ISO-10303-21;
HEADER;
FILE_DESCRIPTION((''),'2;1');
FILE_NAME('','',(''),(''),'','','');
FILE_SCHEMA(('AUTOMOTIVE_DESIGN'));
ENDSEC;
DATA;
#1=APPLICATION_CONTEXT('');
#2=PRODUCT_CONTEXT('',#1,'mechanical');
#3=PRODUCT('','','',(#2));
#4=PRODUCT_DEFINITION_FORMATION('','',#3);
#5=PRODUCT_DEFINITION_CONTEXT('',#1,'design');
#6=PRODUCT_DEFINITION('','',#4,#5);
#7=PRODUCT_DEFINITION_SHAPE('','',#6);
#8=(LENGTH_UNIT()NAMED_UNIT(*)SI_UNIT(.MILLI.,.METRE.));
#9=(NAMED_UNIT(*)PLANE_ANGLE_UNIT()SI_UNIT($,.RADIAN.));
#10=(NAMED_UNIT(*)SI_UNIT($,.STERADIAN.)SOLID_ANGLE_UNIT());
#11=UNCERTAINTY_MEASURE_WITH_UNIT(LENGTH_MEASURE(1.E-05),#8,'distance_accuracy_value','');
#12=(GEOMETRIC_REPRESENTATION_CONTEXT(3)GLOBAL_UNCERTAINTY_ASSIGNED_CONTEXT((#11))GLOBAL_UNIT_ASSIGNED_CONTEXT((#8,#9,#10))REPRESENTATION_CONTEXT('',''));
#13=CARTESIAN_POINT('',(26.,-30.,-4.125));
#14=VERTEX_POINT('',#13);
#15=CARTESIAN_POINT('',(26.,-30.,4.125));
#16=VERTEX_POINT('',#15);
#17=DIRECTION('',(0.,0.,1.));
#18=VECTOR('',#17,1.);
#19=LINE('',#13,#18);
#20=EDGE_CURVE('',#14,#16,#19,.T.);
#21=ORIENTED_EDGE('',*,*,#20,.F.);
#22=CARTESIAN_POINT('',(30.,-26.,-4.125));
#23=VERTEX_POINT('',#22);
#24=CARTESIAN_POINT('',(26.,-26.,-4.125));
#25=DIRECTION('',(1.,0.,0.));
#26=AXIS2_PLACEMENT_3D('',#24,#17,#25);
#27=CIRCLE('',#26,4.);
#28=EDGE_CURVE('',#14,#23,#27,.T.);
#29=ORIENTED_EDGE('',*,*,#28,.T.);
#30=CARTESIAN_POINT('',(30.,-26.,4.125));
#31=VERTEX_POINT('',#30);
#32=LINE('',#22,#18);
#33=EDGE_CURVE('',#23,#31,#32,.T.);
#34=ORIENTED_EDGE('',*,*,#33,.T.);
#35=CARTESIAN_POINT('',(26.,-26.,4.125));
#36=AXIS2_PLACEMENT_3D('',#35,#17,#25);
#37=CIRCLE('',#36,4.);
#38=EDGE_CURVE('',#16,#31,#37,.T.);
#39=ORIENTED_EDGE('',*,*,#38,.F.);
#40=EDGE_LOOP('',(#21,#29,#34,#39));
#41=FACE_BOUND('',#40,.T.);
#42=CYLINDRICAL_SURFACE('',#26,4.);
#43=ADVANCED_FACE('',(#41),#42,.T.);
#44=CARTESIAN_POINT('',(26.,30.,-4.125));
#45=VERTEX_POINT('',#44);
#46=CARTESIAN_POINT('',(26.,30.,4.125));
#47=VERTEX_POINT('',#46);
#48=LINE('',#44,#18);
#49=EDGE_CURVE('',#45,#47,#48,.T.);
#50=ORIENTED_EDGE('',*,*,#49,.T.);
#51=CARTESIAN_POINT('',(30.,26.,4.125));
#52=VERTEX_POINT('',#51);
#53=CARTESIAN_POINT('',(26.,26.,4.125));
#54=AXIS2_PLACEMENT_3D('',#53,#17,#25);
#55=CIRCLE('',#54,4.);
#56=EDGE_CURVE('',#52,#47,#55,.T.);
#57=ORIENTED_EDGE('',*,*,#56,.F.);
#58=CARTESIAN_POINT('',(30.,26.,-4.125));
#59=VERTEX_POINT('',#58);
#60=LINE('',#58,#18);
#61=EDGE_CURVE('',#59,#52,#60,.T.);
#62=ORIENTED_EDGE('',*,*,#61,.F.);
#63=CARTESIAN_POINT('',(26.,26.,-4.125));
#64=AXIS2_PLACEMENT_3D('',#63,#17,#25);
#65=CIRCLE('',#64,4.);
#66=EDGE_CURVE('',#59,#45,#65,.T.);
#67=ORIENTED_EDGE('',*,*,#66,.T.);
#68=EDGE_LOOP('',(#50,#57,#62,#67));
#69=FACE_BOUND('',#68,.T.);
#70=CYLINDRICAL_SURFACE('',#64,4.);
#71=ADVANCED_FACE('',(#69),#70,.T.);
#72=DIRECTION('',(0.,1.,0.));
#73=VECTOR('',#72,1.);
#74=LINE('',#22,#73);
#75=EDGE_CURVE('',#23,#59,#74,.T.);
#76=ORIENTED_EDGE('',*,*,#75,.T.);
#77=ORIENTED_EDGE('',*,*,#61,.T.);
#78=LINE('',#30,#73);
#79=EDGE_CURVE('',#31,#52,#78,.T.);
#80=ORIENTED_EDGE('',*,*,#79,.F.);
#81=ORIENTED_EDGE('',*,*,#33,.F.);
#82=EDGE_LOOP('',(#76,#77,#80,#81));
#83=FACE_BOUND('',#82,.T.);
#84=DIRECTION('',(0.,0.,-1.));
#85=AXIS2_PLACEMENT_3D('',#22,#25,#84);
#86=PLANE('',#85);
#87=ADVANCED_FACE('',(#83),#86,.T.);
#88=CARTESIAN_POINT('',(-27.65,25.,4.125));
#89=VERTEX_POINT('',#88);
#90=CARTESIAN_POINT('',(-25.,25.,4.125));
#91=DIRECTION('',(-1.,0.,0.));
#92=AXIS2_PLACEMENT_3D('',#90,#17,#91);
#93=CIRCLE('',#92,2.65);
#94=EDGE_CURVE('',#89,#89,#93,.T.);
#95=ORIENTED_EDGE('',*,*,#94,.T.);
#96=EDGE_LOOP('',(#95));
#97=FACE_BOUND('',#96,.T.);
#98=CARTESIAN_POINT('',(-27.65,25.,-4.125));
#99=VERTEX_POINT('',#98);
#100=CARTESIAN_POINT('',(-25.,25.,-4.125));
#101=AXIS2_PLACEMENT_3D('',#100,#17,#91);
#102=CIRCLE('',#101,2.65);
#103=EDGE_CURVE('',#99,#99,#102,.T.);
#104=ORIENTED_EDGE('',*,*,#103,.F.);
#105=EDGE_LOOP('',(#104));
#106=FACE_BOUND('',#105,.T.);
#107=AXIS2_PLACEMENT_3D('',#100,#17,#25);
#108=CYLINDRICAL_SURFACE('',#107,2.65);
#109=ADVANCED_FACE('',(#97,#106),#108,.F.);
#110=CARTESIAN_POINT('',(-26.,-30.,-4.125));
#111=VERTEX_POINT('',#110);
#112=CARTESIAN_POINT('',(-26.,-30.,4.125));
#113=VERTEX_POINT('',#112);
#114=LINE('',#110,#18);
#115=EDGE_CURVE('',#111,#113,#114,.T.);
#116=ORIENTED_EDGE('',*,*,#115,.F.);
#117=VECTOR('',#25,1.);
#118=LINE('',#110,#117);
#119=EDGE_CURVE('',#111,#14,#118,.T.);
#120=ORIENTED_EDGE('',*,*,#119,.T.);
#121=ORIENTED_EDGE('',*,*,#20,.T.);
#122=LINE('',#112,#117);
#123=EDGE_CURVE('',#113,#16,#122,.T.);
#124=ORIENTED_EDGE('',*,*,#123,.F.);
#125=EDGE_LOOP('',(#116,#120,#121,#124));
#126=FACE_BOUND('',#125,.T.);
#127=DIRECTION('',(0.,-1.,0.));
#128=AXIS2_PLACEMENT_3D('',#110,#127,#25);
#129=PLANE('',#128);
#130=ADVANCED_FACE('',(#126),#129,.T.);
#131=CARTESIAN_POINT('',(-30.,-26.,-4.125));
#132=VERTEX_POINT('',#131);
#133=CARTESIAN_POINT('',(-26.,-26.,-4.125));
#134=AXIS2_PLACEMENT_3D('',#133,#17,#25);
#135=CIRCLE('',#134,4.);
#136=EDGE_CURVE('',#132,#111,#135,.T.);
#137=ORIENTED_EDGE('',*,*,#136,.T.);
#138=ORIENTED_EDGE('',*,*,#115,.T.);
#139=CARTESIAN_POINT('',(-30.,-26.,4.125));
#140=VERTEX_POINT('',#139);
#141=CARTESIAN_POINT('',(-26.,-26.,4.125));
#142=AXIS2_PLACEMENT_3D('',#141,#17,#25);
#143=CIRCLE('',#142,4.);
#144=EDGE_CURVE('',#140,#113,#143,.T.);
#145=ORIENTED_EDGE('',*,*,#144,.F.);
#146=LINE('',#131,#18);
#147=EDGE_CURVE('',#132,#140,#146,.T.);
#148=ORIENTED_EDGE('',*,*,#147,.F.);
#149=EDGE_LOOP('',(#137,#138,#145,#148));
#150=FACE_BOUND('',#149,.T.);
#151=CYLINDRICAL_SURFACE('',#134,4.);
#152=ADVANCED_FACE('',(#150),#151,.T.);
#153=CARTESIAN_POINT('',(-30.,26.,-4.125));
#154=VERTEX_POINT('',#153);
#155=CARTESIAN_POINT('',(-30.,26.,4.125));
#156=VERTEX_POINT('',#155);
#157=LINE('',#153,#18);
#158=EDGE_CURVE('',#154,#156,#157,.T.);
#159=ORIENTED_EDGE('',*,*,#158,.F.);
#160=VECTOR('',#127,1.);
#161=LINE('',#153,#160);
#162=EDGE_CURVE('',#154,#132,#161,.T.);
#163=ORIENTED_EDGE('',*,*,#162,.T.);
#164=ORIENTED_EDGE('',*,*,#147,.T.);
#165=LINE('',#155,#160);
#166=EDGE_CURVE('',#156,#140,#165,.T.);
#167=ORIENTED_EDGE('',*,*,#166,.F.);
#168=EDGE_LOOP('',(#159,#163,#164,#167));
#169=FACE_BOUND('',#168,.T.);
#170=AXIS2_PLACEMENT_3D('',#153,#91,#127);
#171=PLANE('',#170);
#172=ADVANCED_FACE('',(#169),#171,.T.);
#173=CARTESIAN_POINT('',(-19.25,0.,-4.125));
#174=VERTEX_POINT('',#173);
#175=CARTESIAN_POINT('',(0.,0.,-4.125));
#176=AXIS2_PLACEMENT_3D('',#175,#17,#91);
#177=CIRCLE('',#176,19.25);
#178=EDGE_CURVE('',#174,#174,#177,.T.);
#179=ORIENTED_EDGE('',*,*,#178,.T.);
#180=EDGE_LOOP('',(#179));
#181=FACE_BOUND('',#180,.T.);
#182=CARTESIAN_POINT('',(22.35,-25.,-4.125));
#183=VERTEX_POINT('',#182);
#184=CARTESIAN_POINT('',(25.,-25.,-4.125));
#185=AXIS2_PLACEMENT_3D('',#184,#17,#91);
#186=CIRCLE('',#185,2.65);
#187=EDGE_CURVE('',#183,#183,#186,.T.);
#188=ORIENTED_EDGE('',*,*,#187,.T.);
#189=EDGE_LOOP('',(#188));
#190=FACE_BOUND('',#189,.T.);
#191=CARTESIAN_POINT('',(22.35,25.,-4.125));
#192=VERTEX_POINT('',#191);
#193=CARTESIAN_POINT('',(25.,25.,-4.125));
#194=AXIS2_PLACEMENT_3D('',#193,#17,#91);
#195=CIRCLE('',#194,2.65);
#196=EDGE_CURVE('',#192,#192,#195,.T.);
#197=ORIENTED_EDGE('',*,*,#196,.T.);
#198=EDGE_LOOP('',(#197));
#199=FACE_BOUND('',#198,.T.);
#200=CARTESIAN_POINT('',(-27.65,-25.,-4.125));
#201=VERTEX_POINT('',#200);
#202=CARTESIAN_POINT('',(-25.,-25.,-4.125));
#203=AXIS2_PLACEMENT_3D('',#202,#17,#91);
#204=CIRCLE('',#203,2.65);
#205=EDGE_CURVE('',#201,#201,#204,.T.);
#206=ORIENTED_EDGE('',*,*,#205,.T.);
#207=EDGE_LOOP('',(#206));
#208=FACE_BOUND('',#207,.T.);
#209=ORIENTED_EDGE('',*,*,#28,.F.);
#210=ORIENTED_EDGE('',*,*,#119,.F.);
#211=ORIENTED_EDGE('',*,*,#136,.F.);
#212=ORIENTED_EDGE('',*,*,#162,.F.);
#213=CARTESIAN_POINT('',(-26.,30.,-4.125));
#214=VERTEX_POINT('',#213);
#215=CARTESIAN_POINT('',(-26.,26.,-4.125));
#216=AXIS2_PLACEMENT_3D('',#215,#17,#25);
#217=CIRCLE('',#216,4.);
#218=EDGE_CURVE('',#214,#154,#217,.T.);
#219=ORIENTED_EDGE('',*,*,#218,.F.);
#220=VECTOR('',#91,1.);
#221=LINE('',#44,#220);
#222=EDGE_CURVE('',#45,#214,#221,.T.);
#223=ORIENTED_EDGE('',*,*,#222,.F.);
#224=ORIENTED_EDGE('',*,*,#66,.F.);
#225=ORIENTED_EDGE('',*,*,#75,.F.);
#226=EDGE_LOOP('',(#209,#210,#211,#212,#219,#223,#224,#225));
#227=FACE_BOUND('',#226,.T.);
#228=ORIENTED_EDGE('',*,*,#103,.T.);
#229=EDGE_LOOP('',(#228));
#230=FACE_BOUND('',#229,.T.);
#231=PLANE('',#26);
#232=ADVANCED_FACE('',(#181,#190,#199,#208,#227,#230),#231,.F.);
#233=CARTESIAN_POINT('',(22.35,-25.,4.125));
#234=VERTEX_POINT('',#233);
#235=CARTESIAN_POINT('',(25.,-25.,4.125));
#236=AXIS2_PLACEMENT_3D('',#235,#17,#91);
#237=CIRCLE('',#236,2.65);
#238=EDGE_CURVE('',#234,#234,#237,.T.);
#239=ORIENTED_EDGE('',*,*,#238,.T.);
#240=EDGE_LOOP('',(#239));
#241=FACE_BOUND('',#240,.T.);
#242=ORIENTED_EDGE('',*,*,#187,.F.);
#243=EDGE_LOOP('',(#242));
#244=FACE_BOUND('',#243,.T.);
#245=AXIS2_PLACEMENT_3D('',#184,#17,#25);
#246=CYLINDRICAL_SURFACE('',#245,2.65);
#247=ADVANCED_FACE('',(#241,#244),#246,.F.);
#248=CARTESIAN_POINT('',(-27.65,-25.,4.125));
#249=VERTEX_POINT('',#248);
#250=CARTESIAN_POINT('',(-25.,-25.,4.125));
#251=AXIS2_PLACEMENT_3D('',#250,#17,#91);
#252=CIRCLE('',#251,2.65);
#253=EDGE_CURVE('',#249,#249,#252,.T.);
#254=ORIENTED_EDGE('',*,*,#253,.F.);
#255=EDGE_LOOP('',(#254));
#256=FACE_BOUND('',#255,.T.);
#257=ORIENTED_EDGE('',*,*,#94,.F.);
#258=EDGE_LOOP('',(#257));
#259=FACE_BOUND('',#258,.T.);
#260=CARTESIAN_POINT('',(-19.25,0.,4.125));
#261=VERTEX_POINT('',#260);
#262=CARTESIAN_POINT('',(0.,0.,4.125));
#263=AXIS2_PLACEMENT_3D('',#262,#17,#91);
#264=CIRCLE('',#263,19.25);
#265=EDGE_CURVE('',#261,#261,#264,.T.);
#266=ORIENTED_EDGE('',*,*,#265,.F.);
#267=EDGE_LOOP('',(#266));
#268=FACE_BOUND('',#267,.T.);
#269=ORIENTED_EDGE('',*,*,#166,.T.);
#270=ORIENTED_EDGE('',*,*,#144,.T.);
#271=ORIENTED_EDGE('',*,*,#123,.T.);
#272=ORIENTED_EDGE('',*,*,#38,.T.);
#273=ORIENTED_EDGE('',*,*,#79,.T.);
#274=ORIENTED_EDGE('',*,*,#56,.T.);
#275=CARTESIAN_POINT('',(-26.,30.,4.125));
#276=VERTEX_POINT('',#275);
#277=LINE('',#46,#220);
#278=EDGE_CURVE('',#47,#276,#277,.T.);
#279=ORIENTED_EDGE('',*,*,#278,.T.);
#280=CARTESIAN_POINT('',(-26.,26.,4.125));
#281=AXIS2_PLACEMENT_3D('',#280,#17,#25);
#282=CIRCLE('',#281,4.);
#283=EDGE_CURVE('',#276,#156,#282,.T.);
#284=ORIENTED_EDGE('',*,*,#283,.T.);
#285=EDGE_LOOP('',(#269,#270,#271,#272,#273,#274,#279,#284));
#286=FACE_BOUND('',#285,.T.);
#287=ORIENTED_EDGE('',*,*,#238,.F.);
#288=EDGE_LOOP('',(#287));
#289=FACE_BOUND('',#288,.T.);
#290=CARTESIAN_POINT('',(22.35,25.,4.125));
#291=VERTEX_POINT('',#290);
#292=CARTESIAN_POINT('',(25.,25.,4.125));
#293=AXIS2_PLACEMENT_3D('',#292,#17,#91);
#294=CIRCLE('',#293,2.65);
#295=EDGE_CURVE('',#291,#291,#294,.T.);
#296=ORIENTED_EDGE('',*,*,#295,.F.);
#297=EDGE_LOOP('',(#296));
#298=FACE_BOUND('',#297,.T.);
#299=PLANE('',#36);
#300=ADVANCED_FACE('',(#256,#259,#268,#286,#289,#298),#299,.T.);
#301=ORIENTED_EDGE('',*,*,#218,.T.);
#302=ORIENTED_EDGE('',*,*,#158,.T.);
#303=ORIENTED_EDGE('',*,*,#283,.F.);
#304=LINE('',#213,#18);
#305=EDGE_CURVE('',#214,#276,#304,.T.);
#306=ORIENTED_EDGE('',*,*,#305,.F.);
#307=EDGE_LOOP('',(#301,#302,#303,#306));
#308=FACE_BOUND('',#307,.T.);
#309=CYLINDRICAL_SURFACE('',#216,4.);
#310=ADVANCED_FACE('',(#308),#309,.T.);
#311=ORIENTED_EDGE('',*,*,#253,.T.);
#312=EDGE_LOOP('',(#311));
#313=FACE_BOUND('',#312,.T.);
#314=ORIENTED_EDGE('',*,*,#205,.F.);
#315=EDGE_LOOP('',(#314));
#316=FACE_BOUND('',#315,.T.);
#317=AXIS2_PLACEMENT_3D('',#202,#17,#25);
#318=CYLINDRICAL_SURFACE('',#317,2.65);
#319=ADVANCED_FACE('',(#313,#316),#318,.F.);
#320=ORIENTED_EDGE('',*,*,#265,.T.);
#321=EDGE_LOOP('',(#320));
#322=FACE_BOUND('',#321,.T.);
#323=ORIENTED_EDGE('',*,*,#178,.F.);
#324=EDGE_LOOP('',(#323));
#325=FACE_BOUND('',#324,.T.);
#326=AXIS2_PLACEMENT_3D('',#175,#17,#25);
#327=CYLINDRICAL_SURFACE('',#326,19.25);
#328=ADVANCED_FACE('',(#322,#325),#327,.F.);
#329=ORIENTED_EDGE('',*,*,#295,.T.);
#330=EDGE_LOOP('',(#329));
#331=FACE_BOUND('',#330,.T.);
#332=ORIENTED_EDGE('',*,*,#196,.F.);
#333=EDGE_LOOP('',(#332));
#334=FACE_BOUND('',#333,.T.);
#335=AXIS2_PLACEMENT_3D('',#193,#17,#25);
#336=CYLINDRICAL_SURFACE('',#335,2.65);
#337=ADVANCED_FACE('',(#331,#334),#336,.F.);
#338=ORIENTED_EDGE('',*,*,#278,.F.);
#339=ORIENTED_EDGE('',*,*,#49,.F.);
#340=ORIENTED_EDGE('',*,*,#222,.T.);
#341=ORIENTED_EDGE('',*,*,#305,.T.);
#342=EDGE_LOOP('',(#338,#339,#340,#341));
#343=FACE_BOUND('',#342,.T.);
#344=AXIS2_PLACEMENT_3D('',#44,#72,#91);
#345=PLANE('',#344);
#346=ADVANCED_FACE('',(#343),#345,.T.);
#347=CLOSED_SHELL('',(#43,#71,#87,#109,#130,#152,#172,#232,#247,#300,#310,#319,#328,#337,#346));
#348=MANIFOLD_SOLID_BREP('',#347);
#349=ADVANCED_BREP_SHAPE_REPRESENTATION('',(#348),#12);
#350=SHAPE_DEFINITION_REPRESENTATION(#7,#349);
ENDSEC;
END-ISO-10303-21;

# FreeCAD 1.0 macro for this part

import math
import FreeCAD as App
import Part
import Sketcher

V = App.Vector
Q = App.Units.Quantity

doc = App.newDocument("Part")
body = doc.addObject("PartDesign::Body", "Body")

sketch1 = body.newObject("Sketcher::SketchObject", "Sketch")
sketch1.AttachmentSupport = (doc.getObject("XY_Plane"), [""])
sketch1.MapMode = "FlatFace"
sketch1.addGeometry([
    Part.LineSegment(V(30, -26, 0), V(30, 26, 0)),
    Part.ArcOfCircle(Part.Circle(V(26, 26, 0), V(0, 0, 1), 4), math.radians(0), math.radians(90)),
    Part.LineSegment(V(26, 30, 0), V(-26, 30, 0)),
    Part.ArcOfCircle(Part.Circle(V(-26, 26, 0), V(0, 0, 1), 4), math.radians(90), math.radians(180)),
    Part.LineSegment(V(-30, 26, 0), V(-30, -26, 0)),
    Part.ArcOfCircle(Part.Circle(V(-26, -26, 0), V(0, 0, 1), 4), math.radians(180), math.radians(270)),
    Part.LineSegment(V(-26, -30, 0), V(26, -30, 0)),
    Part.ArcOfCircle(Part.Circle(V(26, -26, 0), V(0, 0, 1), 4), math.radians(-90), math.radians(0)),
    Part.Circle(V(-25, -25, 0), V(0, 0, 1), 2.6),
    Part.Circle(V(25, -25, 0), V(0, 0, 1), 2.6),
    Part.Circle(V(-25, 25, 0), V(0, 0, 1), 2.6),
    Part.Circle(V(0, 0, 0), V(0, 0, 1), 19.2),
    Part.Circle(V(25, 25, 0), V(0, 0, 1), 2.6),
], False)
sketch1.addConstraint([
    Sketcher.Constraint("Tangent", 0, 2, 1, 1),
    Sketcher.Constraint("Tangent", 1, 2, 2, 1),
    Sketcher.Constraint("Tangent", 2, 2, 3, 1),
    Sketcher.Constraint("Tangent", 3, 2, 4, 1),
    Sketcher.Constraint("Tangent", 4, 2, 5, 1),
    Sketcher.Constraint("Tangent", 5, 2, 6, 1),
    Sketcher.Constraint("Tangent", 6, 2, 7, 1),
    Sketcher.Constraint("Tangent", 7, 2, 0, 1),
    Sketcher.Constraint("Vertical", 0),
    Sketcher.Constraint("Horizontal", 2),
    Sketcher.Constraint("Vertical", 4),
    Sketcher.Constraint("Horizontal", 6),
    Sketcher.Constraint("Coincident", 11, 3, -1, 1),
    Sketcher.Constraint("Equal", 1, 3),
    Sketcher.Constraint("Equal", 3, 5),
    Sketcher.Constraint("Equal", 5, 7),
    Sketcher.Constraint("Equal", 8, 9),
    Sketcher.Constraint("Equal", 9, 10),
    Sketcher.Constraint("Equal", 10, 12),
    Sketcher.Constraint("Symmetric", 1, 3, 5, 3, -1, 1),
    Sketcher.Constraint("Symmetric", 9, 3, 10, 3, -1, 1),
    Sketcher.Constraint("Symmetric", 8, 3, 12, 3, -1, 1),
    Sketcher.Constraint("Symmetric", 8, 3, 9, 3, -2),
    Sketcher.Constraint("Equal", 6, 0),
    Sketcher.Constraint("Radius", 1, Q("4 mm")),
    Sketcher.Constraint("Diameter", 8, Q("5.3 mm")),
    Sketcher.Constraint("Diameter", 11, Q("38.5 mm")),
    Sketcher.Constraint("DistanceX", 2, 2, 2, 1, Q("52 mm")),
    Sketcher.Constraint("DistanceX", 8, 3, -1, 1, Q("25 mm")),
    Sketcher.Constraint("DistanceY", 8, 3, -1, 1, Q("25 mm")),
])
pad1 = body.newObject("PartDesign::Pad", "Pad")
pad1.Profile = sketch1
pad1.Length = 8.25
pad1.Midplane = True

doc.recompute()
